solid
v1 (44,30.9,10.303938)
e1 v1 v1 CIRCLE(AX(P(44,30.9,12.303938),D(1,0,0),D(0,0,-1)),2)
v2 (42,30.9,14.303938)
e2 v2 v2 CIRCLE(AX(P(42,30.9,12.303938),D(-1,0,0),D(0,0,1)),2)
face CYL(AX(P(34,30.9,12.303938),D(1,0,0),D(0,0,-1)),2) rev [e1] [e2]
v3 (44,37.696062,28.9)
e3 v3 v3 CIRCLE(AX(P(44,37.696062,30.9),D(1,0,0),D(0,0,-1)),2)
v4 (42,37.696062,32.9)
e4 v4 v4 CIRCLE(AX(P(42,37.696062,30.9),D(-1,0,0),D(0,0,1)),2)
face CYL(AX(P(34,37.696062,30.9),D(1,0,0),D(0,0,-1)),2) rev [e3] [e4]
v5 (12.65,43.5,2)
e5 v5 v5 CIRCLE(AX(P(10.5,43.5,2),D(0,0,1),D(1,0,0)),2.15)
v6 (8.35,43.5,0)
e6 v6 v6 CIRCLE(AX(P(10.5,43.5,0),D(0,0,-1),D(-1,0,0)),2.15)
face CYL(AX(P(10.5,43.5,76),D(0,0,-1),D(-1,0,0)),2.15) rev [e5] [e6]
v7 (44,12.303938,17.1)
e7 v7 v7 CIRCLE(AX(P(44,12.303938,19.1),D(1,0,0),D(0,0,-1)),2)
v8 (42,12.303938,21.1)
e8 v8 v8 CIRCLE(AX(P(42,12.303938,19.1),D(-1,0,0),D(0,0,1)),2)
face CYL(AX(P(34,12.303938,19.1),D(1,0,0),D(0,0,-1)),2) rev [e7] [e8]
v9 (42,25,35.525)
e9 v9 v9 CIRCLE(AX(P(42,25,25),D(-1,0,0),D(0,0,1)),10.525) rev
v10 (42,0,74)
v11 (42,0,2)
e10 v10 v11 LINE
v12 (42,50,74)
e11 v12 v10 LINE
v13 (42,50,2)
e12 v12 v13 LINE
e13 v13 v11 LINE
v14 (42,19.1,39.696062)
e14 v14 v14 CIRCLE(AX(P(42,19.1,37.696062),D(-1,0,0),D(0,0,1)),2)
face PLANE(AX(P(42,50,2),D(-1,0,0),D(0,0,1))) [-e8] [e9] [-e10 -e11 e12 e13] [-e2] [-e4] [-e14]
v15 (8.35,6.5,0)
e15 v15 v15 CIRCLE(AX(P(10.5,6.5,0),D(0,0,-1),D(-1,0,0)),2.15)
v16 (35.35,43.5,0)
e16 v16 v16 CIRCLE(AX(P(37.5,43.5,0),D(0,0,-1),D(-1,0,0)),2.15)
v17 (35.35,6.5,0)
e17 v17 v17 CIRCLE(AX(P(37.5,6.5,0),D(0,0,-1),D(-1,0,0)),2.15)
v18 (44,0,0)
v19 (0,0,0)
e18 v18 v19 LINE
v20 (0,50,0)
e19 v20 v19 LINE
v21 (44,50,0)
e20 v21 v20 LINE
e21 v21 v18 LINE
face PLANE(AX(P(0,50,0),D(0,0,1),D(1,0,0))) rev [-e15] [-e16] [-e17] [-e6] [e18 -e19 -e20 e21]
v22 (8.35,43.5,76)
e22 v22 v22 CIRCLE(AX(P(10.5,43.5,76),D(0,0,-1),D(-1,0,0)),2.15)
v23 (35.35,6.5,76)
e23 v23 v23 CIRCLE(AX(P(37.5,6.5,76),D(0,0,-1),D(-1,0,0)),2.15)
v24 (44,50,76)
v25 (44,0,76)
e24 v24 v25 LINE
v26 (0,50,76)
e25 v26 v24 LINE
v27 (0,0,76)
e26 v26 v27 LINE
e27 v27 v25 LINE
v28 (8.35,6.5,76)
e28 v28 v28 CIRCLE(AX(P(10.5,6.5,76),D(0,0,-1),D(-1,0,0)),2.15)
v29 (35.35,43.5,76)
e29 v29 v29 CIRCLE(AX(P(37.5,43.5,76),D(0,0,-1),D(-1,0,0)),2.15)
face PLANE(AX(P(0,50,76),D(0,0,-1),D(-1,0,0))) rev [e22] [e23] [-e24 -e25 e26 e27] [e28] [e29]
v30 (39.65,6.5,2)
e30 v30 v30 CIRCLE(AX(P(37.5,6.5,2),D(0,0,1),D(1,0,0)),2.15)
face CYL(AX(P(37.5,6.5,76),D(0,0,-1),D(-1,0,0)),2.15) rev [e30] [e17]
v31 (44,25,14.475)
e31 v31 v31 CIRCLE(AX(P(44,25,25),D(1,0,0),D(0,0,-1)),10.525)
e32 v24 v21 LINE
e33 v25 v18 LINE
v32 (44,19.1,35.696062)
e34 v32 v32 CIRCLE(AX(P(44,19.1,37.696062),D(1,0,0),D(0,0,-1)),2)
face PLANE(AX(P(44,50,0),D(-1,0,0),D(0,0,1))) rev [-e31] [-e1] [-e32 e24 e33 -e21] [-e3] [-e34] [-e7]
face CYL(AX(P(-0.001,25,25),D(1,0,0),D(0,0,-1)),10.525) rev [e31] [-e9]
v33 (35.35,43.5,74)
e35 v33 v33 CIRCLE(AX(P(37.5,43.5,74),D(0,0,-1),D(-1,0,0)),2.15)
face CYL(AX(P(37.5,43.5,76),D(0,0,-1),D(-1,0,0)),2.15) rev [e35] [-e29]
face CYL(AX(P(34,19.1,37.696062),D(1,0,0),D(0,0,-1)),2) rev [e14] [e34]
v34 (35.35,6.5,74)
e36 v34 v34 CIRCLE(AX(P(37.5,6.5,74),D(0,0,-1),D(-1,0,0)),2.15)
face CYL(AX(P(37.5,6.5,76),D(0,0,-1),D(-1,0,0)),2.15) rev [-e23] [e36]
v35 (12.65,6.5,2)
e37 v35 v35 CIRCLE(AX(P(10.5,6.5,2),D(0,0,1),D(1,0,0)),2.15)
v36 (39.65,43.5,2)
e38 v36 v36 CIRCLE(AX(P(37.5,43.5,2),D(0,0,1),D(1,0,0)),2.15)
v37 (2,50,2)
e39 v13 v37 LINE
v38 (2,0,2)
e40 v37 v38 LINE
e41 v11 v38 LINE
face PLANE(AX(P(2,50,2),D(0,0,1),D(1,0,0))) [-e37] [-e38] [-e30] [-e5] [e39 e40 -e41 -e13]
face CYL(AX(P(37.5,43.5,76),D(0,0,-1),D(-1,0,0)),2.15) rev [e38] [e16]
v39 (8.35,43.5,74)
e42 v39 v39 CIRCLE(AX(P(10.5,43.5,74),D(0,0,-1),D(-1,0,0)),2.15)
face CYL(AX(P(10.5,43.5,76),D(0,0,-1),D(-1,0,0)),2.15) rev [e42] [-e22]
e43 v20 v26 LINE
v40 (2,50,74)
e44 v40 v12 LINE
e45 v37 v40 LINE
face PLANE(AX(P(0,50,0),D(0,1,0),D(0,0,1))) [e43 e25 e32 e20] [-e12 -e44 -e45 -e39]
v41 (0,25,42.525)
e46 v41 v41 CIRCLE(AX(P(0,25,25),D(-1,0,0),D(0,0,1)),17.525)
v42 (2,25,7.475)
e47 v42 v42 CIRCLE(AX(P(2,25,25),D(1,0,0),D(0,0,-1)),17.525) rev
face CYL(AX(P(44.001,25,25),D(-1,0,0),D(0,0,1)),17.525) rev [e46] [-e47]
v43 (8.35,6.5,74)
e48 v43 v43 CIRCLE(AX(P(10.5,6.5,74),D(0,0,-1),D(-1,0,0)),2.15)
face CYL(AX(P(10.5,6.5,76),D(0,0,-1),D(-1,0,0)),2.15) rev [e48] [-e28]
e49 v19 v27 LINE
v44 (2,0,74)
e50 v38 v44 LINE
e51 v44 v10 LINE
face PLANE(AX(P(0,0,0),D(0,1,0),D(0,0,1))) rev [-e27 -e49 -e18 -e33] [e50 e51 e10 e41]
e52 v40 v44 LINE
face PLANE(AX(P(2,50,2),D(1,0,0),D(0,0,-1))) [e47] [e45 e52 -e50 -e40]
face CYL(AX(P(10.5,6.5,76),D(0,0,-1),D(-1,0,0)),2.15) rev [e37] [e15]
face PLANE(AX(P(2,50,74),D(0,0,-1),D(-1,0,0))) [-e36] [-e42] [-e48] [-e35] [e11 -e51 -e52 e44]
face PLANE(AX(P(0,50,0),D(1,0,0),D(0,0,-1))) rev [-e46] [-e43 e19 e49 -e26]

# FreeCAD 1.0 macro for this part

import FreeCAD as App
import Part
import Sketcher
from FreeCAD import Vector

doc = App.newDocument("Part")
body = doc.addObject("PartDesign::Body", "Body")

sketch1 = body.newObject("Sketcher::SketchObject", "Sketch")
sketch1.AttachmentSupport = (doc.getObject("XZ_Plane"), [""])
sketch1.MapMode = "FlatFace"
sketch1.addGeometry([
    Part.LineSegment(Vector(0, 0, 0), Vector(0, 76, 0)),
    Part.LineSegment(Vector(0, 76, 0), Vector(44, 76, 0)),
    Part.LineSegment(Vector(44, 76, 0), Vector(44, 0, 0)),
    Part.LineSegment(Vector(44, 0, 0), Vector(0, 0, 0)),
    Part.LineSegment(Vector(42, 74, 0), Vector(2, 74, 0)),
    Part.LineSegment(Vector(2, 74, 0), Vector(2, 2, 0)),
    Part.LineSegment(Vector(2, 2, 0), Vector(42, 2, 0)),
    Part.LineSegment(Vector(42, 2, 0), Vector(42, 74, 0)),
], False)
sketch1.addConstraint([
    Sketcher.Constraint("Coincident", 0, 2, 1, 1),
    Sketcher.Constraint("Coincident", 1, 2, 2, 1),
    Sketcher.Constraint("Coincident", 2, 2, 3, 1),
    Sketcher.Constraint("Coincident", 3, 2, 0, 1),
    Sketcher.Constraint("Coincident", 4, 2, 5, 1),
    Sketcher.Constraint("Coincident", 5, 2, 6, 1),
    Sketcher.Constraint("Coincident", 6, 2, 7, 1),
    Sketcher.Constraint("Coincident", 7, 2, 4, 1),
    Sketcher.Constraint("Vertical", 0),
    Sketcher.Constraint("Horizontal", 1),
    Sketcher.Constraint("Vertical", 2),
    Sketcher.Constraint("Horizontal", 3),
    Sketcher.Constraint("Horizontal", 4),
    Sketcher.Constraint("Vertical", 5),
    Sketcher.Constraint("Horizontal", 6),
    Sketcher.Constraint("Vertical", 7),
    Sketcher.Constraint("Coincident", 3, 2, -1, 1),
    Sketcher.Constraint("DistanceX", 1, 1, 1, 2, 44.0),
    Sketcher.Constraint("DistanceX", 4, 2, 4, 1, 40.0),
    Sketcher.Constraint("DistanceY", 0, 1, 0, 2, 76.0),
    Sketcher.Constraint("DistanceY", 5, 2, 5, 1, 72.0),
    Sketcher.Constraint("DistanceX", -1, 1, 4, 2, 2.0),
    Sketcher.Constraint("DistanceY", -1, 1, 4, 2, 74.0),
])
pad1 = body.newObject("PartDesign::Pad", "Pad")
pad1.Profile = sketch1
pad1.Length = 50
pad1.Reversed = True

sketch2 = body.newObject("Sketcher::SketchObject", "Sketch001")
sketch2.AttachmentSupport = (doc.getObject("XY_Plane"), [""])
sketch2.MapMode = "FlatFace"
sketch2.addGeometry([
    Part.Circle(Vector(10.5, 6.5, 0), Vector(0, 0, 1), 2.15),
    Part.Circle(Vector(37.5, 6.5, 0), Vector(0, 0, 1), 2.15),
    Part.Circle(Vector(37.5, 43.5, 0), Vector(0, 0, 1), 2.15),
    Part.Circle(Vector(10.5, 43.5, 0), Vector(0, 0, 1), 2.15),
], False)
sketch2.addConstraint([
    Sketcher.Constraint("Equal", 0, 1),
    Sketcher.Constraint("Equal", 1, 2),
    Sketcher.Constraint("Equal", 2, 3),
    Sketcher.Constraint("Horizontal", 0, 3, 1, 3),
    Sketcher.Constraint("Horizontal", 2, 3, 3, 3),
    Sketcher.Constraint("Vertical", 1, 3, 2, 3),
    Sketcher.Constraint("Vertical", 0, 3, 3, 3),
    Sketcher.Constraint("Diameter", 0, 4.3),
    Sketcher.Constraint("DistanceX", 0, 3, 1, 3, 27.0),
    Sketcher.Constraint("DistanceY", 1, 3, 2, 3, 37.0),
    Sketcher.Constraint("DistanceX", -1, 1, 0, 3, 10.5),
    Sketcher.Constraint("DistanceY", -1, 1, 0, 3, 6.5),
])
pocket1 = body.newObject("PartDesign::Pocket", "Pocket")
pocket1.Profile = sketch2
pocket1.Type = "ThroughAll"
pocket1.Reversed = True

sketch3 = body.newObject("Sketcher::SketchObject", "Sketch002")
sketch3.AttachmentSupport = (doc.getObject("YZ_Plane"), [""])
sketch3.MapMode = "FlatFace"
sketch3.addGeometry(Part.Circle(Vector(25, 25, 0), Vector(0, 0, 1), 17.525), False)
sketch3.addConstraint([
    Sketcher.Constraint("Diameter", 0, 35.05),
    Sketcher.Constraint("DistanceX", -1, 1, 0, 3, 25.0),
    Sketcher.Constraint("DistanceY", -1, 1, 0, 3, 25.0),
])
pocket2 = body.newObject("PartDesign::Pocket", "Pocket001")
pocket2.Profile = sketch3
pocket2.Type = "UpToFirst"
pocket2.Reversed = True

sketch4 = body.newObject("Sketcher::SketchObject", "Sketch003")
sketch4.AttachmentSupport = (doc.getObject("YZ_Plane"), [""])
sketch4.MapMode = "FlatFace"
sketch4.AttachmentOffset = App.Placement(Vector(0, 0, 44), App.Rotation())
sketch4.addGeometry(Part.Circle(Vector(25, 25, 0), Vector(0, 0, 1), 10.525), False)
sketch4.addConstraint([
    Sketcher.Constraint("Diameter", 0, 21.05),
    Sketcher.Constraint("DistanceX", -1, 1, 0, 3, 25.0),
    Sketcher.Constraint("DistanceY", -1, 1, 0, 3, 25.0),
])
pocket3 = body.newObject("PartDesign::Pocket", "Pocket002")
pocket3.Profile = sketch4
pocket3.Type = "UpToFirst"

sketch5 = body.newObject("Sketcher::SketchObject", "Sketch004")
sketch5.AttachmentSupport = (doc.getObject("YZ_Plane"), [""])
sketch5.MapMode = "FlatFace"
sketch5.AttachmentOffset = App.Placement(Vector(0, 0, 44), App.Rotation())
sketch5.addGeometry([
    Part.Circle(Vector(30.9, 12.303938, 0), Vector(0, 0, 1), 2),
    Part.Circle(Vector(12.303938, 19.1, 0), Vector(0, 0, 1), 2),
    Part.Circle(Vector(19.1, 37.696062, 0), Vector(0, 0, 1), 2),
    Part.Circle(Vector(37.696062, 30.9, 0), Vector(0, 0, 1), 2),
], False)
sketch5.addConstraint([
    Sketcher.Constraint("Equal", 0, 1),
    Sketcher.Constraint("Equal", 1, 2),
    Sketcher.Constraint("Equal", 2, 3),
    Sketcher.Constraint("Diameter", 0, 4.0),
    Sketcher.Constraint("DistanceX", -1, 1, 0, 3, 30.9),
    Sketcher.Constraint("DistanceY", -1, 1, 1, 3, 19.1),
    Sketcher.Constraint("DistanceX", -1, 1, 2, 3, 19.1),
    Sketcher.Constraint("DistanceY", -1, 1, 3, 3, 30.9),
    Sketcher.Constraint("DistanceY", -1, 1, 0, 3, 12.303938),
    Sketcher.Constraint("DistanceX", -1, 1, 1, 3, 12.303938),
    Sketcher.Constraint("DistanceY", -1, 1, 2, 3, 37.696062),
    Sketcher.Constraint("DistanceX", -1, 1, 3, 3, 37.696062),
])
pocket4 = body.newObject("PartDesign::Pocket", "Pocket003")
pocket4.Profile = sketch5
pocket4.Length = 10

doc.recompute()
